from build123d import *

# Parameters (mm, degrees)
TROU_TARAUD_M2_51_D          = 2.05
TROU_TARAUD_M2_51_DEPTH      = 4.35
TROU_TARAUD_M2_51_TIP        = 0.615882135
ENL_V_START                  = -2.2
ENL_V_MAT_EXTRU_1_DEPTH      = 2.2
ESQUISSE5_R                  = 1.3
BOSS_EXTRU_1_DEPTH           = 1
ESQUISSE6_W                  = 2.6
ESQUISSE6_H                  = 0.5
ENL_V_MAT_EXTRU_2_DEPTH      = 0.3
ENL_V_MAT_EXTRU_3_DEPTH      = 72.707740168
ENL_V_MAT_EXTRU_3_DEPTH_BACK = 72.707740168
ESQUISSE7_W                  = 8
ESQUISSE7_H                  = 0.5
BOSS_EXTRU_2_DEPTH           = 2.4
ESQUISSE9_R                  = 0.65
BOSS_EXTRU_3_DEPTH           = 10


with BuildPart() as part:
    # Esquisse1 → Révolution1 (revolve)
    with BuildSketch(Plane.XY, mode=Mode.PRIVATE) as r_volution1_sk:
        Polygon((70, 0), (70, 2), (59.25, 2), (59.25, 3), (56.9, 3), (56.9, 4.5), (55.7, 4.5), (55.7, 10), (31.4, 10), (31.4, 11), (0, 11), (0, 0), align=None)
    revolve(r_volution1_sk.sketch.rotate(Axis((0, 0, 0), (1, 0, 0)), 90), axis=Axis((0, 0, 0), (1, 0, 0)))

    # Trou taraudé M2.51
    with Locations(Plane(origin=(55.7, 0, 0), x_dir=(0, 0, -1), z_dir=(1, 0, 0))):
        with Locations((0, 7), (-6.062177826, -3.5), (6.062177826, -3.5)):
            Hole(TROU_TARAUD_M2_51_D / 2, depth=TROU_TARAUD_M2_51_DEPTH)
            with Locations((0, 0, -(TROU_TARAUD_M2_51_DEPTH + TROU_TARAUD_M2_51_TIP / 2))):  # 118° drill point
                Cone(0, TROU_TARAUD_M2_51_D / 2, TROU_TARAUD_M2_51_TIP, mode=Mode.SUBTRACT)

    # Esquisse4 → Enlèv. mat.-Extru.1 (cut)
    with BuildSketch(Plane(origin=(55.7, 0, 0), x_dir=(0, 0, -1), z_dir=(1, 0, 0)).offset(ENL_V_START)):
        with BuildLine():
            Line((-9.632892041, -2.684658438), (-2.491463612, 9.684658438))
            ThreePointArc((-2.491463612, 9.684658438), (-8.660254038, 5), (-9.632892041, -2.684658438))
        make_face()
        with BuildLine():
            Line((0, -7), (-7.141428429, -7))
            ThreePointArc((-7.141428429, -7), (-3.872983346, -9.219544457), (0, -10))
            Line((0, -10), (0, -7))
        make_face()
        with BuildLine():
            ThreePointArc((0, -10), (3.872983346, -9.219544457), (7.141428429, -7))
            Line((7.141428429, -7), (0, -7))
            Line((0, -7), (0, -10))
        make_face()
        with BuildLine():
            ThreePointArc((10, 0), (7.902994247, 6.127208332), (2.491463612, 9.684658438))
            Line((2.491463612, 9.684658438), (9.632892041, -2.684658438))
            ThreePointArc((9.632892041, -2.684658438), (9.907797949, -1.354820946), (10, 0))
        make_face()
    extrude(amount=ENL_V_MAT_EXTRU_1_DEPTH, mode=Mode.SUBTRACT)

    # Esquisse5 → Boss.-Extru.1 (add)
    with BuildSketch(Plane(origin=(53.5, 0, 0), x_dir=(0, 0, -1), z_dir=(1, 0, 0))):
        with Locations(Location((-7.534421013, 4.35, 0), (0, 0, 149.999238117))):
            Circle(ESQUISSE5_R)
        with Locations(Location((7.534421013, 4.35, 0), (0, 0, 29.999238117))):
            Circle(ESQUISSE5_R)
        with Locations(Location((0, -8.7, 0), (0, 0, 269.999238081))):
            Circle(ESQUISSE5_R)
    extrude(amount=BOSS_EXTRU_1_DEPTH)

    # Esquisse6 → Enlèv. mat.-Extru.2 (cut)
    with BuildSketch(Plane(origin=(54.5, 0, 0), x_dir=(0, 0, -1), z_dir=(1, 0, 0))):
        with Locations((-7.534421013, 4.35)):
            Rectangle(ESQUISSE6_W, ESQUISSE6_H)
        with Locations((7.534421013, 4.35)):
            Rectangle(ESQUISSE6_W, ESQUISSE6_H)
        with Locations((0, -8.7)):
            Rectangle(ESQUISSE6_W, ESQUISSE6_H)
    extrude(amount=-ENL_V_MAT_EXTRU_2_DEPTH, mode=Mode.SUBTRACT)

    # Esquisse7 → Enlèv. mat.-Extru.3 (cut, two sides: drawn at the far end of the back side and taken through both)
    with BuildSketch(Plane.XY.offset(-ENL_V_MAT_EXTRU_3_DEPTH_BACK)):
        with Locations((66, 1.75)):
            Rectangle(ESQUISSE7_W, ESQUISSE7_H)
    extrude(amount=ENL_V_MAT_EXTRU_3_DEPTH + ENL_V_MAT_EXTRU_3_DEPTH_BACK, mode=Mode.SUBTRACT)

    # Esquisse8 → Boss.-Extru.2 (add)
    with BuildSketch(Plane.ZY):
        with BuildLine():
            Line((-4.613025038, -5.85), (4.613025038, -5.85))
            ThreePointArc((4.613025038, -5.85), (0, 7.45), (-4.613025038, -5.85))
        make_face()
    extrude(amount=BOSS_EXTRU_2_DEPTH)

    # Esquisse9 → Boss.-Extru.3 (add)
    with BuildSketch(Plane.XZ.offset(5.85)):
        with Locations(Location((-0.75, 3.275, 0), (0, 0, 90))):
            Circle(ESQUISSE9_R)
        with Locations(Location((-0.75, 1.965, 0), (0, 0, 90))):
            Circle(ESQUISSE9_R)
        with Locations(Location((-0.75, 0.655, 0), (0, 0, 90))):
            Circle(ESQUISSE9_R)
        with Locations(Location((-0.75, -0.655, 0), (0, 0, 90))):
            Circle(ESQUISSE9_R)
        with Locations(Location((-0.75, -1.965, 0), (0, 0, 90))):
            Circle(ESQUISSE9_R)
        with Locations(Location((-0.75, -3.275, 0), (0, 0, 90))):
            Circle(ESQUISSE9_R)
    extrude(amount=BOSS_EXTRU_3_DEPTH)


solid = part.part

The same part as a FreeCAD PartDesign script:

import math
import FreeCAD as App
import Part
import Sketcher
from FreeCAD import Vector
Q = App.Units.Quantity


def add_polygon(sketch, points):
    """Adds a closed chain of lines whose ends are joined by coincident constraints."""
    first, n = sketch.GeometryCount, len(points)
    for a, b in zip(points, points[1:] + points[:1]):
        sketch.addGeometry(Part.LineSegment(App.Vector(*a, 0), App.Vector(*b, 0)), False)
    for i in range(n):
        sketch.addConstraint(Sketcher.Constraint("Coincident", first + i, 2, first + (i + 1) % n, 1))

doc = App.newDocument("Part")
body = doc.addObject("PartDesign::Body", "Body")

# Sketch on XY plane
sketch1 = body.newObject("Sketcher::SketchObject", "Sketch")
sketch1.AttachmentSupport = (doc.getObject("XY_Plane"), [""])
sketch1.MapMode = "FlatFace"
add_polygon(sketch1, [(70, 0), (70, 2), (59.25, 2), (59.25, 3), (56.9, 3), (56.9, 4.5), (55.7, 4.5), (55.7, 10), (31.4, 10), (31.4, 11), (0, 11), (0, 0)])  # lines 0-11
sketch1.addConstraint([
    Sketcher.Constraint("Vertical", 0),
    Sketcher.Constraint("Horizontal", 1),
    Sketcher.Constraint("Vertical", 2),
    Sketcher.Constraint("Horizontal", 3),
    Sketcher.Constraint("Vertical", 4),
    Sketcher.Constraint("Horizontal", 5),
    Sketcher.Constraint("Vertical", 6),
    Sketcher.Constraint("Horizontal", 7),
    Sketcher.Constraint("Vertical", 8),
    Sketcher.Constraint("Horizontal", 9),
    Sketcher.Constraint("Vertical", 10),
    Sketcher.Constraint("Horizontal", 11),
    Sketcher.Constraint("Coincident", 10, 2, -1, 1),
    Sketcher.Constraint("Equal", 2, 8),
    Sketcher.Constraint("DistanceX", 11, 1, 11, 2, 70.0),
    Sketcher.Constraint("DistanceY", 0, 1, 0, 2, 2.0),
    Sketcher.Constraint("DistanceY", 2, 1, 2, 2, 1.0),
    Sketcher.Constraint("DistanceY", 10, 2, 10, 1, 11.0),
    Sketcher.Constraint("DistanceX", 5, 2, 5, 1, 1.2),
    Sketcher.Constraint("DistanceX", 7, 2, 7, 1, 24.3),
    Sketcher.Constraint("DistanceX", 9, 2, 9, 1, 31.4),
    Sketcher.Constraint("DistanceY", 4, 1, 4, 2, 1.5),
    Sketcher.Constraint("DistanceX", 1, 2, 1, 1, 10.75),
])
revolution = body.newObject("PartDesign::Revolution", "Revolution")
revolution.Profile = sketch1
revolution.ReferenceAxis = (sketch1, ["H_Axis"])
revolution.Angle = 360

# Sketch on YZ plane
sketch2 = body.newObject("Sketcher::SketchObject", "Sketch001")
sketch2.AttachmentSupport = (doc.getObject("YZ_Plane"), [""])
sketch2.MapMode = "FlatFace"
sketch2.AttachmentOffset = App.Placement(Vector(0, 0, 55.7), App.Rotation())
sketch2.addGeometry([
    Part.Circle(Vector(7, 0, 0), Vector(0, 0, 1), 1.025),
    Part.Circle(Vector(-3.5, 6.062178, 0), Vector(0, 0, 1), 1.025),
    Part.Circle(Vector(-3.5, -6.062178, 0), Vector(0, 0, 1), 1.025),
], False)
sketch2.addConstraint([
    Sketcher.Constraint("Equal", 0, 1),
    Sketcher.Constraint("Equal", 1, 2),
    Sketcher.Constraint("Symmetric", 1, 3, 2, 3, -1),
    Sketcher.Constraint("PointOnObject", 0, 3, -1),
    Sketcher.Constraint("Diameter", 0, 2.05),
    Sketcher.Constraint("DistanceX", -1, 1, 0, 3, 7.0),
    Sketcher.Constraint("DistanceX", 1, 3, -1, 1, 3.5),
    Sketcher.Constraint("DistanceY", -1, 1, 1, 3, 6.062178),
])
doc.recompute()
hole = body.newObject("PartDesign::Hole", "Hole")
hole.Profile = sketch2
hole.ThreadType = "None"
hole.Diameter = 2.05
hole.DepthType = "Dimension"
hole.Depth = 4.35
hole.DrillPoint = "Angled"
hole.DrillPointAngle = 118

# Sketch on YZ plane
sketch3 = body.newObject("Sketcher::SketchObject", "Sketch002")
sketch3.AttachmentSupport = (doc.getObject("YZ_Plane"), [""])
sketch3.MapMode = "FlatFace"
sketch3.AttachmentOffset = App.Placement(Vector(0, 0, 53.5), App.Rotation())
sketch3.addGeometry([
    Part.LineSegment(Vector(-2.684658, 9.632892, 0), Vector(9.684658, 2.491464, 0)),  # 0
    Part.ArcOfCircle(Part.Circle(Vector(0, 0, 0), Vector(0, 0, 1), 10), math.radians(14.427004), math.radians(105.572996)),  # 1
    Part.ArcOfCircle(Part.Circle(Vector(0, 0, 0), Vector(0, 0, 1), 10), math.radians(134.427004), math.radians(180)),  # 2
    Part.ArcOfCircle(Part.Circle(Vector(0, 0, 0), Vector(0, 0, 1), 10), math.radians(-180), math.radians(-134.427004)),  # 3
    Part.LineSegment(Vector(-7, -7.141428, 0), Vector(-7, 7.141428, 0)),  # 4
    Part.ArcOfCircle(Part.Circle(Vector(0, 0, 0), Vector(0, 0, 1), 10), math.radians(-90), math.radians(-14.427004)),  # 5
    Part.LineSegment(Vector(9.684658, -2.491464, 0), Vector(-2.684658, -9.632892, 0)),  # 6
    Part.ArcOfCircle(Part.Circle(Vector(0, 0, 0), Vector(0, 0, 1), 10), math.radians(-105.572996), math.radians(-90)),  # 7
], False)
sketch3.addConstraint([
    Sketcher.Constraint("Coincident", 0, 1, 1, 2),
    Sketcher.Constraint("Coincident", 1, 1, 0, 2),
    Sketcher.Constraint("Tangent", 2, 2, 3, 1),
    Sketcher.Constraint("Coincident", 3, 2, 4, 1),
    Sketcher.Constraint("Coincident", 4, 2, 2, 1),
    Sketcher.Constraint("Coincident", 5, 2, 6, 1),
    Sketcher.Constraint("Coincident", 6, 2, 7, 1),
    Sketcher.Constraint("Tangent", 7, 2, 5, 1),
    Sketcher.Constraint("Vertical", 4),
    Sketcher.Constraint("Coincident", 1, 3, -1, 1),
    Sketcher.Constraint("Coincident", 2, 3, -1, 1),
    Sketcher.Constraint("Coincident", 5, 3, -1, 1),
    Sketcher.Constraint("Equal", 1, 2),
    Sketcher.Constraint("Equal", 2, 3),
    Sketcher.Constraint("Equal", 3, 5),
    Sketcher.Constraint("Equal", 5, 7),
    Sketcher.Constraint("PointOnObject", 2, 2, -1),
    Sketcher.Constraint("PointOnObject", 7, 2, -2),
    Sketcher.Constraint("Vertical", 1, 1, 5, 2),
    Sketcher.Constraint("Vertical", 0, 1, 6, 2),
    Sketcher.Constraint("Radius", 1, 10.0),
    Sketcher.Constraint("Angle", 0, Q("-30 deg")),
    Sketcher.Constraint("DistanceX", 3, 2, -1, 1, 7.0),
    Sketcher.Constraint("DistanceX", 0, 1, -1, 1, 2.684658),
])
pocket1 = body.newObject("PartDesign::Pocket", "Pocket")
pocket1.Profile = sketch3
pocket1.Length = 2.2
pocket1.Reversed = True

# Sketch on YZ plane
sketch4 = body.newObject("Sketcher::SketchObject", "Sketch003")
sketch4.AttachmentSupport = (doc.getObject("YZ_Plane"), [""])
sketch4.MapMode = "FlatFace"
sketch4.AttachmentOffset = App.Placement(Vector(0, 0, 53.5), App.Rotation())
sketch4.addGeometry([
    Part.Circle(Vector(4.35, 7.534421, 0), Vector(0, 0, 1), 1.3),
    Part.Circle(Vector(4.35, -7.534421, 0), Vector(0, 0, 1), 1.3),
    Part.Circle(Vector(-8.7, 0, 0), Vector(0, 0, 1), 1.3),
], False)
sketch4.addConstraint([
    Sketcher.Constraint("Equal", 0, 1),
    Sketcher.Constraint("Equal", 1, 2),
    Sketcher.Constraint("Symmetric", 0, 3, 1, 3, -1),
    Sketcher.Constraint("PointOnObject", 2, 3, -1),
    Sketcher.Constraint("Diameter", 0, 2.6),
    Sketcher.Constraint("DistanceX", 2, 3, -1, 1, 8.7),
    Sketcher.Constraint("DistanceX", -1, 1, 0, 3, 4.35),
    Sketcher.Constraint("DistanceY", -1, 1, 0, 3, 7.534421),
])
pad1 = body.newObject("PartDesign::Pad", "Pad")
pad1.Profile = sketch4
pad1.Length = 1

# Sketch on YZ plane
sketch5 = body.newObject("Sketcher::SketchObject", "Sketch004")
sketch5.AttachmentSupport = (doc.getObject("YZ_Plane"), [""])
sketch5.MapMode = "FlatFace"
sketch5.AttachmentOffset = App.Placement(Vector(0, 0, 54.5), App.Rotation())
add_polygon(sketch5, [(4.6, 8.834421), (4.1, 8.834421), (4.1, 6.234421), (4.6, 6.234421)])  # lines 0-3
add_polygon(sketch5, [(4.6, -6.234421), (4.1, -6.234421), (4.1, -8.834421), (4.6, -8.834421)])  # lines 4-7
add_polygon(sketch5, [(-8.45, 1.3), (-8.95, 1.3), (-8.95, -1.3), (-8.45, -1.3)])  # lines 8-11
sketch5.addConstraint([
    Sketcher.Constraint("Horizontal", 0),
    Sketcher.Constraint("Vertical", 1),
    Sketcher.Constraint("Horizontal", 2),
    Sketcher.Constraint("Vertical", 3),
    Sketcher.Constraint("Horizontal", 4),
    Sketcher.Constraint("Vertical", 5),
    Sketcher.Constraint("Horizontal", 6),
    Sketcher.Constraint("Vertical", 7),
    Sketcher.Constraint("Horizontal", 8),
    Sketcher.Constraint("Vertical", 9),
    Sketcher.Constraint("Horizontal", 10),
    Sketcher.Constraint("Vertical", 11),
    Sketcher.Constraint("Symmetric", 1, 2, 4, 2, -1),
    Sketcher.Constraint("Symmetric", 3, 2, 6, 2, -1),
    Sketcher.Constraint("Equal", 6, 8),
    Sketcher.Constraint("Equal", 7, 9),
    Sketcher.Constraint("DistanceX", 0, 2, 0, 1, 0.5),
    Sketcher.Constraint("DistanceY", 1, 2, 1, 1, 2.6),
    Sketcher.Constraint("DistanceX", -1, 1, 0, 2, 4.1),
    Sketcher.Constraint("DistanceY", -1, 1, 8, 2, 1.3),
    Sketcher.Constraint("DistanceX", 8, 2, -1, 1, 8.95),
    Sketcher.Constraint("DistanceY", -1, 1, 0, 2, 8.834421),
])
pocket2 = body.newObject("PartDesign::Pocket", "Pocket001")
pocket2.Profile = sketch5
pocket2.Length = 0.3

# Sketch on XY plane
sketch6 = body.newObject("Sketcher::SketchObject", "Sketch005")
sketch6.AttachmentSupport = (doc.getObject("XY_Plane"), [""])
sketch6.MapMode = "FlatFace"
add_polygon(sketch6, [(62, 2), (62, 1.5), (70, 1.5), (70, 2)])  # lines 0-3
sketch6.addConstraint([
    Sketcher.Constraint("Vertical", 0),
    Sketcher.Constraint("Horizontal", 1),
    Sketcher.Constraint("Vertical", 2),
    Sketcher.Constraint("Horizontal", 3),
    Sketcher.Constraint("DistanceX", 1, 1, 1, 2, 8.0),
    Sketcher.Constraint("DistanceY", 0, 2, 0, 1, 0.5),
    Sketcher.Constraint("DistanceX", -1, 1, 0, 2, 62.0),
    Sketcher.Constraint("DistanceY", -1, 1, 2, 2, 2.0),
])
pocket3 = body.newObject("PartDesign::Pocket", "Pocket002")
pocket3.Profile = sketch6
pocket3.Type = "ThroughAll"
pocket3.Midplane = True

# Sketch on YZ plane
sketch7 = body.newObject("Sketcher::SketchObject", "Sketch006")
sketch7.AttachmentSupport = (doc.getObject("YZ_Plane"), [""])
sketch7.MapMode = "FlatFace"
sketch7.addGeometry([
    Part.LineSegment(Vector(-5.85, -4.613025, 0), Vector(-5.85, 4.613025, 0)),
    Part.ArcOfCircle(Part.Circle(Vector(0, 0, 0), Vector(0, 0, 1), 7.45), math.radians(-141.742409), math.radians(141.742409)),
], False)
sketch7.addConstraint([
    Sketcher.Constraint("Coincident", 0, 1, 1, 1),
    Sketcher.Constraint("Coincident", 1, 2, 0, 2),
    Sketcher.Constraint("Vertical", 0),
    Sketcher.Constraint("Coincident", 1, 3, -1, 1),
    Sketcher.Constraint("Radius", 1, 7.45),
    Sketcher.Constraint("DistanceX", 0, 1, -1, 1, 5.85),
])
pad2 = body.newObject("PartDesign::Pad", "Pad001")
pad2.Profile = sketch7
pad2.Length = 2.4
pad2.Reversed = True

# Sketch on XZ plane
sketch8 = body.newObject("Sketcher::SketchObject", "Sketch007")
sketch8.AttachmentSupport = (doc.getObject("XZ_Plane"), [""])
sketch8.MapMode = "FlatFace"
sketch8.AttachmentOffset = App.Placement(Vector(0, 0, 5.85), App.Rotation())
sketch8.addGeometry([
    Part.Circle(Vector(-0.75, 3.275, 0), Vector(0, 0, 1), 0.65),  # 0
    Part.Circle(Vector(-0.75, 1.965, 0), Vector(0, 0, 1), 0.65),  # 1
    Part.Circle(Vector(-0.75, 0.655, 0), Vector(0, 0, 1), 0.65),  # 2
    Part.Circle(Vector(-0.75, -0.655, 0), Vector(0, 0, 1), 0.65),  # 3
    Part.Circle(Vector(-0.75, -1.965, 0), Vector(0, 0, 1), 0.65),  # 4
    Part.Circle(Vector(-0.75, -3.275, 0), Vector(0, 0, 1), 0.65),  # 5
], False)
sketch8.addConstraint([
    Sketcher.Constraint("Equal", 0, 1),
    Sketcher.Constraint("Equal", 1, 2),
    Sketcher.Constraint("Equal", 2, 3),
    Sketcher.Constraint("Equal", 3, 4),
    Sketcher.Constraint("Equal", 4, 5),
    Sketcher.Constraint("Symmetric", 2, 3, 3, 3, -1),
    Sketcher.Constraint("Symmetric", 1, 3, 4, 3, -1),
    Sketcher.Constraint("Symmetric", 0, 3, 5, 3, -1),
    Sketcher.Constraint("Vertical", 0, 3, 1, 3),
    Sketcher.Constraint("Vertical", 1, 3, 2, 3),
    Sketcher.Constraint("Diameter", 0, 1.3),
    Sketcher.Constraint("DistanceX", 0, 3, -1, 1, 0.75),
    Sketcher.Constraint("DistanceY", 1, 3, 0, 3, 1.31),
    Sketcher.Constraint("DistanceY", 2, 3, 1, 3, 1.31),
    Sketcher.Constraint("DistanceY", 3, 3, 2, 3, 1.31),
])
pad3 = body.newObject("PartDesign::Pad", "Pad002")
pad3.Profile = sketch8
pad3.Length = 10

doc.recompute()
